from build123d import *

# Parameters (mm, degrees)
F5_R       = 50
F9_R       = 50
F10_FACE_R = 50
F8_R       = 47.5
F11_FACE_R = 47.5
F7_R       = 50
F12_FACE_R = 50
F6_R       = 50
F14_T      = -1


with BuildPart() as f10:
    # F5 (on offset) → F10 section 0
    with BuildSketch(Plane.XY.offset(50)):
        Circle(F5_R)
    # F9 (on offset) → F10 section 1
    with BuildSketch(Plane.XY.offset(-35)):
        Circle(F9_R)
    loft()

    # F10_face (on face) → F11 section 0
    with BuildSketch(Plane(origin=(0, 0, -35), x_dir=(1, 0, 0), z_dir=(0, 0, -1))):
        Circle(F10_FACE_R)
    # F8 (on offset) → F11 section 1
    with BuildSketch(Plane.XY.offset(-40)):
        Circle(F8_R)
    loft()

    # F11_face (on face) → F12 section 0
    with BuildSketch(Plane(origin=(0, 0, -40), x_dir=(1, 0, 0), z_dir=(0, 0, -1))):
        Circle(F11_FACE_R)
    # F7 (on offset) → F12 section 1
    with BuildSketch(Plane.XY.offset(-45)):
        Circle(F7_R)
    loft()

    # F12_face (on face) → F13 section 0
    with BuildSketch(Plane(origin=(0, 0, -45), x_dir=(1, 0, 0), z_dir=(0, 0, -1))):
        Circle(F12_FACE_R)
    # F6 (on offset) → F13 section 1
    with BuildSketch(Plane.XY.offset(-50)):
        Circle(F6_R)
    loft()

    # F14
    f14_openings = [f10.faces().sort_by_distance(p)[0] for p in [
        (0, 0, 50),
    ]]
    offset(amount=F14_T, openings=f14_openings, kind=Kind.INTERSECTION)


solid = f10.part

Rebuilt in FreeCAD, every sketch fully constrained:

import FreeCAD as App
import Part
import Sketcher
from FreeCAD import Vector


def faces_at(feature, points):
    """Names of the faces that lie closest to the given points."""
    faces = feature.Shape.Faces
    near = lambda p: min(range(len(faces)), key=lambda i: faces[i].distToShape(Part.Vertex(*p))[0])
    return sorted({f"Face{near(p) + 1}" for p in points})

doc = App.newDocument("Part")
body = doc.addObject("PartDesign::Body", "Body")

sketch1 = doc.addObject("Sketcher::SketchObject", "Sketch")
body.addObject(sketch1)
sketch1.AttachmentSupport = (doc.XY_Plane, [""])
sketch1.MapMode = "FlatFace"
sketch1.AttachmentOffset = App.Placement(Vector(0, 0, 50), App.Rotation())
sketch1.addGeometry(Part.Circle(Vector(0, 0, 0), Vector(0, 0, 1), 50), False)
sketch1.addConstraint(Sketcher.Constraint("Coincident", 0, 3, -1, 1))
sketch1.addConstraint(Sketcher.Constraint("Diameter", 0, 100.0))

sketch2 = doc.addObject("Sketcher::SketchObject", "Sketch001")
body.addObject(sketch2)
sketch2.AttachmentSupport = (doc.XY_Plane, [""])
sketch2.MapMode = "FlatFace"
sketch2.AttachmentOffset = App.Placement(Vector(0, 0, -35), App.Rotation())
sketch2.addGeometry(Part.Circle(Vector(0, 0, 0), Vector(0, 0, 1), 50), False)
sketch2.addConstraint(Sketcher.Constraint("Coincident", 0, 3, -1, 1))
sketch2.addConstraint(Sketcher.Constraint("Diameter", 0, 100.0))

additiveloft = doc.addObject("PartDesign::AdditiveLoft", "AdditiveLoft")
body.addObject(additiveloft)
additiveloft.Profile = sketch1
additiveloft.Sections = [sketch2]

sketch3 = doc.addObject("Sketcher::SketchObject", "Sketch002")
body.addObject(sketch3)
sketch3.AttachmentSupport = (doc.XY_Plane, [""])
sketch3.MapMode = "FlatFace"
sketch3.AttachmentOffset = App.Placement(Vector(0, 0, -35), App.Rotation())
sketch3.addGeometry(Part.Circle(Vector(0, 0, 0), Vector(0, 0, 1), 50), False)
sketch3.addConstraint(Sketcher.Constraint("Coincident", 0, 3, -1, 1))
sketch3.addConstraint(Sketcher.Constraint("Diameter", 0, 100.0))

sketch4 = doc.addObject("Sketcher::SketchObject", "Sketch003")
body.addObject(sketch4)
sketch4.AttachmentSupport = (doc.XY_Plane, [""])
sketch4.MapMode = "FlatFace"
sketch4.AttachmentOffset = App.Placement(Vector(0, 0, -40), App.Rotation())
sketch4.addGeometry(Part.Circle(Vector(0, 0, 0), Vector(0, 0, 1), 47.5), False)
sketch4.addConstraint(Sketcher.Constraint("Coincident", 0, 3, -1, 1))
sketch4.addConstraint(Sketcher.Constraint("Diameter", 0, 95.0))

additiveloft2 = doc.addObject("PartDesign::AdditiveLoft", "AdditiveLoft001")
body.addObject(additiveloft2)
additiveloft2.Profile = sketch3
additiveloft2.Sections = [sketch4]

sketch5 = doc.addObject("Sketcher::SketchObject", "Sketch004")
body.addObject(sketch5)
sketch5.AttachmentSupport = (doc.XY_Plane, [""])
sketch5.MapMode = "FlatFace"
sketch5.AttachmentOffset = App.Placement(Vector(0, 0, -40), App.Rotation())
sketch5.addGeometry(Part.Circle(Vector(0, 0, 0), Vector(0, 0, 1), 47.5), False)
sketch5.addConstraint(Sketcher.Constraint("Coincident", 0, 3, -1, 1))
sketch5.addConstraint(Sketcher.Constraint("Diameter", 0, 95.0))

sketch6 = doc.addObject("Sketcher::SketchObject", "Sketch005")
body.addObject(sketch6)
sketch6.AttachmentSupport = (doc.XY_Plane, [""])
sketch6.MapMode = "FlatFace"
sketch6.AttachmentOffset = App.Placement(Vector(0, 0, -45), App.Rotation())
sketch6.addGeometry(Part.Circle(Vector(0, 0, 0), Vector(0, 0, 1), 50), False)
sketch6.addConstraint(Sketcher.Constraint("Coincident", 0, 3, -1, 1))
sketch6.addConstraint(Sketcher.Constraint("Diameter", 0, 100.0))

additiveloft3 = doc.addObject("PartDesign::AdditiveLoft", "AdditiveLoft002")
body.addObject(additiveloft3)
additiveloft3.Profile = sketch5
additiveloft3.Sections = [sketch6]

sketch7 = doc.addObject("Sketcher::SketchObject", "Sketch006")
body.addObject(sketch7)
sketch7.AttachmentSupport = (doc.XY_Plane, [""])
sketch7.MapMode = "FlatFace"
sketch7.AttachmentOffset = App.Placement(Vector(0, 0, -45), App.Rotation())
sketch7.addGeometry(Part.Circle(Vector(0, 0, 0), Vector(0, 0, 1), 50), False)
sketch7.addConstraint(Sketcher.Constraint("Coincident", 0, 3, -1, 1))
sketch7.addConstraint(Sketcher.Constraint("Diameter", 0, 100.0))

sketch8 = doc.addObject("Sketcher::SketchObject", "Sketch007")
body.addObject(sketch8)
sketch8.AttachmentSupport = (doc.XY_Plane, [""])
sketch8.MapMode = "FlatFace"
sketch8.AttachmentOffset = App.Placement(Vector(0, 0, -50), App.Rotation())
sketch8.addGeometry(Part.Circle(Vector(0, 0, 0), Vector(0, 0, 1), 50), False)
sketch8.addConstraint(Sketcher.Constraint("Coincident", 0, 3, -1, 1))
sketch8.addConstraint(Sketcher.Constraint("Diameter", 0, 100.0))

additiveloft4 = doc.addObject("PartDesign::AdditiveLoft", "AdditiveLoft003")
body.addObject(additiveloft4)
additiveloft4.Profile = sketch7
additiveloft4.Sections = [sketch8]
doc.recompute()

thickness = doc.addObject("PartDesign::Thickness", "Thickness")
body.addObject(thickness)
thickness.Base = (additiveloft4, faces_at(additiveloft4, [(0, 0, 50)]))
thickness.Value = 1
thickness.Reversed = True
thickness.Join = "Intersection"

doc.recompute()
